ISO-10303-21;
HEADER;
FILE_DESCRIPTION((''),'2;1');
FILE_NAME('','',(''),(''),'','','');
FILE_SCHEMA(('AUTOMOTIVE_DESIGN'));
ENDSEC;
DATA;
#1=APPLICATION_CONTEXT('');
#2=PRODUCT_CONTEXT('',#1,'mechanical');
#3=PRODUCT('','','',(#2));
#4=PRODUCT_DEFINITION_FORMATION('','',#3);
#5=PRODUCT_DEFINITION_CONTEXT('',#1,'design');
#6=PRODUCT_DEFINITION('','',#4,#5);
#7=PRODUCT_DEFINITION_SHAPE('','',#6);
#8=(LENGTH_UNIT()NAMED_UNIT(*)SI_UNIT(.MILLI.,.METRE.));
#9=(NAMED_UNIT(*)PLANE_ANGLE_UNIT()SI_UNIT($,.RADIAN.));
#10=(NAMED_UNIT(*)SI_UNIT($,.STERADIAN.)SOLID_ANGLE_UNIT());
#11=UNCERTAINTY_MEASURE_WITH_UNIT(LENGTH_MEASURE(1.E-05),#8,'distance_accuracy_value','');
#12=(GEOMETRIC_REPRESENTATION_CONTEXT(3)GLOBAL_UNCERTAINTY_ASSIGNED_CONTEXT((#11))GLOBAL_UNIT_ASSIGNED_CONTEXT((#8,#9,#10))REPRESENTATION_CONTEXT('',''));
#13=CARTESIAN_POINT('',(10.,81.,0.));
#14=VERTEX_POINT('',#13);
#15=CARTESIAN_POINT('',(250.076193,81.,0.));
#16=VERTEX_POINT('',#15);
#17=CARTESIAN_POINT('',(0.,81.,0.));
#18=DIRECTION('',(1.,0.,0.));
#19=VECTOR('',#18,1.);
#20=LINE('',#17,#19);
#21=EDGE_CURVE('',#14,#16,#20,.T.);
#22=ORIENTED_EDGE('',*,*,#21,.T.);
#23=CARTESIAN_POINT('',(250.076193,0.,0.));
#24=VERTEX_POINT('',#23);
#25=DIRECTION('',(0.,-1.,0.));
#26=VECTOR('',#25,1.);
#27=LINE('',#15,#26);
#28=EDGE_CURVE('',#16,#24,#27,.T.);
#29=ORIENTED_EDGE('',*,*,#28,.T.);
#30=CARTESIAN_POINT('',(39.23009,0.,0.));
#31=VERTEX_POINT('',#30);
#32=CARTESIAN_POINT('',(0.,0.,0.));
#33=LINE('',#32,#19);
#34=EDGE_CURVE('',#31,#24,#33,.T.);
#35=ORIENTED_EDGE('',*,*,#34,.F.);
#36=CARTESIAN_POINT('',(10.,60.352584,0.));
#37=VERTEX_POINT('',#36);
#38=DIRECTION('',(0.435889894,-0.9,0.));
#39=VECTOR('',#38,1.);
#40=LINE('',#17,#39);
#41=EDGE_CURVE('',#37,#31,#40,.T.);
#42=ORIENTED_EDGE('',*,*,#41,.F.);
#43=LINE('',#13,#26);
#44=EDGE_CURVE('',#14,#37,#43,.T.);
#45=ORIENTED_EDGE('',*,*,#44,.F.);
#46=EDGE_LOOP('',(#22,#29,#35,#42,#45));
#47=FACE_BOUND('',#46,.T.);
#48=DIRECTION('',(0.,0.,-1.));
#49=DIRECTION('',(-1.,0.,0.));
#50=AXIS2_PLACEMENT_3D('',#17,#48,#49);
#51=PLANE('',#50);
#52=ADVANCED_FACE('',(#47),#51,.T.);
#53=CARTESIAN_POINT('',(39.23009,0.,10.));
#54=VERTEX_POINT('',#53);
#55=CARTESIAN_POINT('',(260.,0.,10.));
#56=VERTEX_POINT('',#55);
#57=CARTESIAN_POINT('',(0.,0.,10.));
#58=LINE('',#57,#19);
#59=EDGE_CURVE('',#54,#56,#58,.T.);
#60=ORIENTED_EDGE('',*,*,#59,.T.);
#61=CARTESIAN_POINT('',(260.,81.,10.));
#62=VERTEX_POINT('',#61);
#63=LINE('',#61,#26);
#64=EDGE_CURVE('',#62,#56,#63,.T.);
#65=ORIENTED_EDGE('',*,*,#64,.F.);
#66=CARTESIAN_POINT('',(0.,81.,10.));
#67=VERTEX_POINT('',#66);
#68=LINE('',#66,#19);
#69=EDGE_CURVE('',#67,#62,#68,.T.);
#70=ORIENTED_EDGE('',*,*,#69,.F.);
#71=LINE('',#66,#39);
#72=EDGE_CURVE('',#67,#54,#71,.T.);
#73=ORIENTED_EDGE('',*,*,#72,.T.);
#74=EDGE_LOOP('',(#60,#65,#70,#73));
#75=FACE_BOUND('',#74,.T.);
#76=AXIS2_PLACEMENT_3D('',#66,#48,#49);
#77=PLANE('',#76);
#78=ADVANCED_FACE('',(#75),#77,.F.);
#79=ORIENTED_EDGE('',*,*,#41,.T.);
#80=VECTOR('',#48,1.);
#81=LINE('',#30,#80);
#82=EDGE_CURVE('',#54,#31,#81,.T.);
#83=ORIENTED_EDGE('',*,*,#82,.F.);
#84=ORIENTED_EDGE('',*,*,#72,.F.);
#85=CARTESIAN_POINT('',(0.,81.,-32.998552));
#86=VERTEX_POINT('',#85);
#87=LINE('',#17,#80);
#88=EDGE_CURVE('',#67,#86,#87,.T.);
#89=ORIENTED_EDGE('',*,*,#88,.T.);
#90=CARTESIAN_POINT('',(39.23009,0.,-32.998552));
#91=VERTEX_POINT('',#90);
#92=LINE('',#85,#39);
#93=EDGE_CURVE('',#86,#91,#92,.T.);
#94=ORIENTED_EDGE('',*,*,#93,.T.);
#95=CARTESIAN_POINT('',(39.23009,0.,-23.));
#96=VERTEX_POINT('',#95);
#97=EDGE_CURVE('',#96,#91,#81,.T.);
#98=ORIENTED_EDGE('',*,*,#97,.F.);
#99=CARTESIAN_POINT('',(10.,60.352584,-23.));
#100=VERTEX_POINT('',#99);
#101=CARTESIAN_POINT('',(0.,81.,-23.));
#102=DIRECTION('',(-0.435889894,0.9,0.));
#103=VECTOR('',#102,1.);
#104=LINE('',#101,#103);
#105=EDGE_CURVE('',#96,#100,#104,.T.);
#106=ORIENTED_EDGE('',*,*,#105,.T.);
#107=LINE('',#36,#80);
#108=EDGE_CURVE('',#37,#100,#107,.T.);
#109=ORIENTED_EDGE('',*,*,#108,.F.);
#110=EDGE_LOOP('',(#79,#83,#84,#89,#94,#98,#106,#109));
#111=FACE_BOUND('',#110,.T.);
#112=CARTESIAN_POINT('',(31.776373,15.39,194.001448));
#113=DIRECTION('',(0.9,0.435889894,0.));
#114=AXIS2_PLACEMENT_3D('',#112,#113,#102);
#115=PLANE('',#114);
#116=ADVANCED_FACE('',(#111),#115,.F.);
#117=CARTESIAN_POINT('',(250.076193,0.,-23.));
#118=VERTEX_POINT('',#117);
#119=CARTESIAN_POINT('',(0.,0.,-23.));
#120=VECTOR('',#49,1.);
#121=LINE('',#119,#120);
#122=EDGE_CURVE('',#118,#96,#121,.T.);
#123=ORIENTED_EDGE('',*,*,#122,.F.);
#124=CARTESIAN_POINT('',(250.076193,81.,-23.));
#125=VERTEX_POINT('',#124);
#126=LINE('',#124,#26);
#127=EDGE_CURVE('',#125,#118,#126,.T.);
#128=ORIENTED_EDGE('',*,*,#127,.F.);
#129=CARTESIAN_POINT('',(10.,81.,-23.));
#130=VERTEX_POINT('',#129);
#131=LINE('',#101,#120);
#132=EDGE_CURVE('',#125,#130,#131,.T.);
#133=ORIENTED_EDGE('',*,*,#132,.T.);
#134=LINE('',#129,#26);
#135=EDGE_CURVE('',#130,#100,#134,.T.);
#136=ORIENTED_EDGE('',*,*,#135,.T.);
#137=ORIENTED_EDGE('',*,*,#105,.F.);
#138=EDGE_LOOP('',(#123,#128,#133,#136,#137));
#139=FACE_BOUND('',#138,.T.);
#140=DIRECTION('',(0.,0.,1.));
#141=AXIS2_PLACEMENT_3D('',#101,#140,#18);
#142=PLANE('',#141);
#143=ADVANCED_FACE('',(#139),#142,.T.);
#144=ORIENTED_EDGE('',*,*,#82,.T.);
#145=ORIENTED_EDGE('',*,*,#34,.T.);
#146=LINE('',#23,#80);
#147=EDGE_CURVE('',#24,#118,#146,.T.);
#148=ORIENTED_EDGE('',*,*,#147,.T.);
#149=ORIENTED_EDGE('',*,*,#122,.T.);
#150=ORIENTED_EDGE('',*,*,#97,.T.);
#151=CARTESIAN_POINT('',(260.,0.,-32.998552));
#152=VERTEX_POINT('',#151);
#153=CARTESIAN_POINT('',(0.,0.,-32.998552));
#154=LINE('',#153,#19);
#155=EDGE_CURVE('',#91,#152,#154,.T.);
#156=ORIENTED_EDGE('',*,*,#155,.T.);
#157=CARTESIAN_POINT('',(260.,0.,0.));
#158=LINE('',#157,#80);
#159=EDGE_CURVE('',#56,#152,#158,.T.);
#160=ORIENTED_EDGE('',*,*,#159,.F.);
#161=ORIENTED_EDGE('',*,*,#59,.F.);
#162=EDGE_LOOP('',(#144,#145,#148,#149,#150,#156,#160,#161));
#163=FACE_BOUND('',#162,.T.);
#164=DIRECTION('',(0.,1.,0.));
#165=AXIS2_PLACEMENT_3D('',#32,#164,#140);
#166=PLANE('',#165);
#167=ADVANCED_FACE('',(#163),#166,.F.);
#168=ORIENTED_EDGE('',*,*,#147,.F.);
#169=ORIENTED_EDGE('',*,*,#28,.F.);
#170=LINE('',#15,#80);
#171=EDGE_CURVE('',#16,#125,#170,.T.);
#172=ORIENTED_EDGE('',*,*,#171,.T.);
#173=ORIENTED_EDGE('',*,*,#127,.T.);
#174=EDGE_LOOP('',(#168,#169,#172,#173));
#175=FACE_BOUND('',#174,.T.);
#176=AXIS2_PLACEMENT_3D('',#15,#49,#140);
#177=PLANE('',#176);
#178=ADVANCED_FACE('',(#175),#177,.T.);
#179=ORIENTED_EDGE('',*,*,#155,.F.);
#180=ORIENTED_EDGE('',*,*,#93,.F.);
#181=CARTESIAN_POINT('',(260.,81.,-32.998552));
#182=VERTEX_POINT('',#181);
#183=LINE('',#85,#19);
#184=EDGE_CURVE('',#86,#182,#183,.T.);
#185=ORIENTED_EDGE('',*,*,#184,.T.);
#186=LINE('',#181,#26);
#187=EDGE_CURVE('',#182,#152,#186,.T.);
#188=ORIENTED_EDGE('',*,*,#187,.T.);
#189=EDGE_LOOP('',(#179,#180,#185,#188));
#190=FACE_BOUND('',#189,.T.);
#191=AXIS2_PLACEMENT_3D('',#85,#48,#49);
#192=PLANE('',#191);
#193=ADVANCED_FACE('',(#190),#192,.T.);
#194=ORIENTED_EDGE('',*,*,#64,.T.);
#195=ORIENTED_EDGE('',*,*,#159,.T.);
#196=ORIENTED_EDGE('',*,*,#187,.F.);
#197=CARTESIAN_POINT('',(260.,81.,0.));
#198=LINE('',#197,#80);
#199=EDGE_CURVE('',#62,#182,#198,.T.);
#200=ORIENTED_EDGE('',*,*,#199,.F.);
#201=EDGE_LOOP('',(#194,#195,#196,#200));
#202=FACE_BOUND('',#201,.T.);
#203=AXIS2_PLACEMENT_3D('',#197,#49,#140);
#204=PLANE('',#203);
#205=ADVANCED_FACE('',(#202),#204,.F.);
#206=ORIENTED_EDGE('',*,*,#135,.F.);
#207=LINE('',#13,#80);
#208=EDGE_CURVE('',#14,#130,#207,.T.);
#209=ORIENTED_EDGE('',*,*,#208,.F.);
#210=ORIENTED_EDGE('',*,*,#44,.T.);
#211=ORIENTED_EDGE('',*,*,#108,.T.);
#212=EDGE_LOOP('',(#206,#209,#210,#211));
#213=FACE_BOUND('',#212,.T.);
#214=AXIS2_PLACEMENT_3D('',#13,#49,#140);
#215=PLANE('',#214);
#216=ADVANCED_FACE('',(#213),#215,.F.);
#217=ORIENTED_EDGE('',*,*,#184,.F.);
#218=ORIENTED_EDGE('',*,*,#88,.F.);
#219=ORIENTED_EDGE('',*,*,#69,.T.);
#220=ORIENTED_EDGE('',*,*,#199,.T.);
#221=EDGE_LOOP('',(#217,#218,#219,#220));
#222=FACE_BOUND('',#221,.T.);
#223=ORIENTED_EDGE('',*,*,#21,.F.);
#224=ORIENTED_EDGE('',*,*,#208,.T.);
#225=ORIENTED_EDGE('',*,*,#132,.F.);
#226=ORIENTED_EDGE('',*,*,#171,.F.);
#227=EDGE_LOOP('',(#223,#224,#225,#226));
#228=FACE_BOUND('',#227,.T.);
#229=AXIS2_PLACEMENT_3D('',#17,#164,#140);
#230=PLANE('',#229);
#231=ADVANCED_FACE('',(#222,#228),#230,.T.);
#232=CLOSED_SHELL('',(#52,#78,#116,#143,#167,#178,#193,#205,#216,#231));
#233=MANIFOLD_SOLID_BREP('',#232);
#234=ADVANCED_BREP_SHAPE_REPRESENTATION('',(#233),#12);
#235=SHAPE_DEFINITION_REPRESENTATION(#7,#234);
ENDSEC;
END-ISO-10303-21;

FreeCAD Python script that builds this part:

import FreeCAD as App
import Part
import Sketcher


def add_polygon(sketch, points):
    """Adds a closed chain of lines whose ends are joined by coincident constraints."""
    first, n = sketch.GeometryCount, len(points)
    for a, b in zip(points, points[1:] + points[:1]):
        sketch.addGeometry(Part.LineSegment(App.Vector(*a, 0), App.Vector(*b, 0)), False)
    for i in range(n):
        sketch.addConstraint(Sketcher.Constraint("Coincident", first + i, 2, first + (i + 1) % n, 1))

doc = App.newDocument("Part")
body = doc.addObject("PartDesign::Body", "Body")

sketch1 = body.newObject("Sketcher::SketchObject", "Sketch")
sketch1.AttachmentSupport = (doc.getObject("XZ_Plane"), [""])
sketch1.MapMode = "FlatFace"
add_polygon(sketch1, [(0, -32.998552), (0, 10), (260, 10), (260, -32.998552)])
add_polygon(sketch1, [(250.076193, 0), (10, 0), (10, -23), (250.076193, -23)])
sketch1.addConstraint([
    Sketcher.Constraint("Vertical", 0),
    Sketcher.Constraint("Horizontal", 1),
    Sketcher.Constraint("Vertical", 2),
    Sketcher.Constraint("Horizontal", 3),
    Sketcher.Constraint("Horizontal", 4),
    Sketcher.Constraint("Vertical", 5),
    Sketcher.Constraint("Horizontal", 6),
    Sketcher.Constraint("Vertical", 7),
    Sketcher.Constraint("PointOnObject", 0, 2, -2),
    Sketcher.Constraint("PointOnObject", 4, 2, -1),
    Sketcher.Constraint("DistanceX", 1, 1, 1, 2, 260.0),
    Sketcher.Constraint("DistanceY", 5, 2, 5, 1, 23.0),
    Sketcher.Constraint("DistanceY", -1, 1, 0, 2, 10.0),
    Sketcher.Constraint("DistanceX", -1, 1, 4, 2, 10.0),
    Sketcher.Constraint("DistanceX", 4, 2, 4, 1, 240.076193),
    Sketcher.Constraint("DistanceY", 0, 1, 0, 2, 42.998552),
])
pad1 = body.newObject("PartDesign::Pad", "Pad")
pad1.Profile = sketch1
pad1.Length = 81
pad1.Reversed = True

sketch2 = body.newObject("Sketcher::SketchObject", "Sketch001")
sketch2.AttachmentSupport = (doc.getObject("XY_Plane"), [""])
sketch2.MapMode = "FlatFace"
sketch2.AttachmentOffset = App.Placement(App.Vector(0, 0, -32.998552), App.Rotation())
add_polygon(sketch2, [(0, 0), (0, 81), (39.23009, 0)])
sketch2.addConstraint([
    Sketcher.Constraint("Vertical", 0),
    Sketcher.Constraint("Horizontal", 2),
    Sketcher.Constraint("Coincident", 2, 2, -1, 1),
    Sketcher.Constraint("DistanceY", 0, 1, 0, 2, 81.0),
    Sketcher.Constraint("Distance", 1, 90.0),
])
pocket1 = body.newObject("PartDesign::Pocket", "Pocket")
pocket1.Profile = sketch2
pocket1.Type = "ThroughAll"
pocket1.Midplane = True

doc.recompute()
